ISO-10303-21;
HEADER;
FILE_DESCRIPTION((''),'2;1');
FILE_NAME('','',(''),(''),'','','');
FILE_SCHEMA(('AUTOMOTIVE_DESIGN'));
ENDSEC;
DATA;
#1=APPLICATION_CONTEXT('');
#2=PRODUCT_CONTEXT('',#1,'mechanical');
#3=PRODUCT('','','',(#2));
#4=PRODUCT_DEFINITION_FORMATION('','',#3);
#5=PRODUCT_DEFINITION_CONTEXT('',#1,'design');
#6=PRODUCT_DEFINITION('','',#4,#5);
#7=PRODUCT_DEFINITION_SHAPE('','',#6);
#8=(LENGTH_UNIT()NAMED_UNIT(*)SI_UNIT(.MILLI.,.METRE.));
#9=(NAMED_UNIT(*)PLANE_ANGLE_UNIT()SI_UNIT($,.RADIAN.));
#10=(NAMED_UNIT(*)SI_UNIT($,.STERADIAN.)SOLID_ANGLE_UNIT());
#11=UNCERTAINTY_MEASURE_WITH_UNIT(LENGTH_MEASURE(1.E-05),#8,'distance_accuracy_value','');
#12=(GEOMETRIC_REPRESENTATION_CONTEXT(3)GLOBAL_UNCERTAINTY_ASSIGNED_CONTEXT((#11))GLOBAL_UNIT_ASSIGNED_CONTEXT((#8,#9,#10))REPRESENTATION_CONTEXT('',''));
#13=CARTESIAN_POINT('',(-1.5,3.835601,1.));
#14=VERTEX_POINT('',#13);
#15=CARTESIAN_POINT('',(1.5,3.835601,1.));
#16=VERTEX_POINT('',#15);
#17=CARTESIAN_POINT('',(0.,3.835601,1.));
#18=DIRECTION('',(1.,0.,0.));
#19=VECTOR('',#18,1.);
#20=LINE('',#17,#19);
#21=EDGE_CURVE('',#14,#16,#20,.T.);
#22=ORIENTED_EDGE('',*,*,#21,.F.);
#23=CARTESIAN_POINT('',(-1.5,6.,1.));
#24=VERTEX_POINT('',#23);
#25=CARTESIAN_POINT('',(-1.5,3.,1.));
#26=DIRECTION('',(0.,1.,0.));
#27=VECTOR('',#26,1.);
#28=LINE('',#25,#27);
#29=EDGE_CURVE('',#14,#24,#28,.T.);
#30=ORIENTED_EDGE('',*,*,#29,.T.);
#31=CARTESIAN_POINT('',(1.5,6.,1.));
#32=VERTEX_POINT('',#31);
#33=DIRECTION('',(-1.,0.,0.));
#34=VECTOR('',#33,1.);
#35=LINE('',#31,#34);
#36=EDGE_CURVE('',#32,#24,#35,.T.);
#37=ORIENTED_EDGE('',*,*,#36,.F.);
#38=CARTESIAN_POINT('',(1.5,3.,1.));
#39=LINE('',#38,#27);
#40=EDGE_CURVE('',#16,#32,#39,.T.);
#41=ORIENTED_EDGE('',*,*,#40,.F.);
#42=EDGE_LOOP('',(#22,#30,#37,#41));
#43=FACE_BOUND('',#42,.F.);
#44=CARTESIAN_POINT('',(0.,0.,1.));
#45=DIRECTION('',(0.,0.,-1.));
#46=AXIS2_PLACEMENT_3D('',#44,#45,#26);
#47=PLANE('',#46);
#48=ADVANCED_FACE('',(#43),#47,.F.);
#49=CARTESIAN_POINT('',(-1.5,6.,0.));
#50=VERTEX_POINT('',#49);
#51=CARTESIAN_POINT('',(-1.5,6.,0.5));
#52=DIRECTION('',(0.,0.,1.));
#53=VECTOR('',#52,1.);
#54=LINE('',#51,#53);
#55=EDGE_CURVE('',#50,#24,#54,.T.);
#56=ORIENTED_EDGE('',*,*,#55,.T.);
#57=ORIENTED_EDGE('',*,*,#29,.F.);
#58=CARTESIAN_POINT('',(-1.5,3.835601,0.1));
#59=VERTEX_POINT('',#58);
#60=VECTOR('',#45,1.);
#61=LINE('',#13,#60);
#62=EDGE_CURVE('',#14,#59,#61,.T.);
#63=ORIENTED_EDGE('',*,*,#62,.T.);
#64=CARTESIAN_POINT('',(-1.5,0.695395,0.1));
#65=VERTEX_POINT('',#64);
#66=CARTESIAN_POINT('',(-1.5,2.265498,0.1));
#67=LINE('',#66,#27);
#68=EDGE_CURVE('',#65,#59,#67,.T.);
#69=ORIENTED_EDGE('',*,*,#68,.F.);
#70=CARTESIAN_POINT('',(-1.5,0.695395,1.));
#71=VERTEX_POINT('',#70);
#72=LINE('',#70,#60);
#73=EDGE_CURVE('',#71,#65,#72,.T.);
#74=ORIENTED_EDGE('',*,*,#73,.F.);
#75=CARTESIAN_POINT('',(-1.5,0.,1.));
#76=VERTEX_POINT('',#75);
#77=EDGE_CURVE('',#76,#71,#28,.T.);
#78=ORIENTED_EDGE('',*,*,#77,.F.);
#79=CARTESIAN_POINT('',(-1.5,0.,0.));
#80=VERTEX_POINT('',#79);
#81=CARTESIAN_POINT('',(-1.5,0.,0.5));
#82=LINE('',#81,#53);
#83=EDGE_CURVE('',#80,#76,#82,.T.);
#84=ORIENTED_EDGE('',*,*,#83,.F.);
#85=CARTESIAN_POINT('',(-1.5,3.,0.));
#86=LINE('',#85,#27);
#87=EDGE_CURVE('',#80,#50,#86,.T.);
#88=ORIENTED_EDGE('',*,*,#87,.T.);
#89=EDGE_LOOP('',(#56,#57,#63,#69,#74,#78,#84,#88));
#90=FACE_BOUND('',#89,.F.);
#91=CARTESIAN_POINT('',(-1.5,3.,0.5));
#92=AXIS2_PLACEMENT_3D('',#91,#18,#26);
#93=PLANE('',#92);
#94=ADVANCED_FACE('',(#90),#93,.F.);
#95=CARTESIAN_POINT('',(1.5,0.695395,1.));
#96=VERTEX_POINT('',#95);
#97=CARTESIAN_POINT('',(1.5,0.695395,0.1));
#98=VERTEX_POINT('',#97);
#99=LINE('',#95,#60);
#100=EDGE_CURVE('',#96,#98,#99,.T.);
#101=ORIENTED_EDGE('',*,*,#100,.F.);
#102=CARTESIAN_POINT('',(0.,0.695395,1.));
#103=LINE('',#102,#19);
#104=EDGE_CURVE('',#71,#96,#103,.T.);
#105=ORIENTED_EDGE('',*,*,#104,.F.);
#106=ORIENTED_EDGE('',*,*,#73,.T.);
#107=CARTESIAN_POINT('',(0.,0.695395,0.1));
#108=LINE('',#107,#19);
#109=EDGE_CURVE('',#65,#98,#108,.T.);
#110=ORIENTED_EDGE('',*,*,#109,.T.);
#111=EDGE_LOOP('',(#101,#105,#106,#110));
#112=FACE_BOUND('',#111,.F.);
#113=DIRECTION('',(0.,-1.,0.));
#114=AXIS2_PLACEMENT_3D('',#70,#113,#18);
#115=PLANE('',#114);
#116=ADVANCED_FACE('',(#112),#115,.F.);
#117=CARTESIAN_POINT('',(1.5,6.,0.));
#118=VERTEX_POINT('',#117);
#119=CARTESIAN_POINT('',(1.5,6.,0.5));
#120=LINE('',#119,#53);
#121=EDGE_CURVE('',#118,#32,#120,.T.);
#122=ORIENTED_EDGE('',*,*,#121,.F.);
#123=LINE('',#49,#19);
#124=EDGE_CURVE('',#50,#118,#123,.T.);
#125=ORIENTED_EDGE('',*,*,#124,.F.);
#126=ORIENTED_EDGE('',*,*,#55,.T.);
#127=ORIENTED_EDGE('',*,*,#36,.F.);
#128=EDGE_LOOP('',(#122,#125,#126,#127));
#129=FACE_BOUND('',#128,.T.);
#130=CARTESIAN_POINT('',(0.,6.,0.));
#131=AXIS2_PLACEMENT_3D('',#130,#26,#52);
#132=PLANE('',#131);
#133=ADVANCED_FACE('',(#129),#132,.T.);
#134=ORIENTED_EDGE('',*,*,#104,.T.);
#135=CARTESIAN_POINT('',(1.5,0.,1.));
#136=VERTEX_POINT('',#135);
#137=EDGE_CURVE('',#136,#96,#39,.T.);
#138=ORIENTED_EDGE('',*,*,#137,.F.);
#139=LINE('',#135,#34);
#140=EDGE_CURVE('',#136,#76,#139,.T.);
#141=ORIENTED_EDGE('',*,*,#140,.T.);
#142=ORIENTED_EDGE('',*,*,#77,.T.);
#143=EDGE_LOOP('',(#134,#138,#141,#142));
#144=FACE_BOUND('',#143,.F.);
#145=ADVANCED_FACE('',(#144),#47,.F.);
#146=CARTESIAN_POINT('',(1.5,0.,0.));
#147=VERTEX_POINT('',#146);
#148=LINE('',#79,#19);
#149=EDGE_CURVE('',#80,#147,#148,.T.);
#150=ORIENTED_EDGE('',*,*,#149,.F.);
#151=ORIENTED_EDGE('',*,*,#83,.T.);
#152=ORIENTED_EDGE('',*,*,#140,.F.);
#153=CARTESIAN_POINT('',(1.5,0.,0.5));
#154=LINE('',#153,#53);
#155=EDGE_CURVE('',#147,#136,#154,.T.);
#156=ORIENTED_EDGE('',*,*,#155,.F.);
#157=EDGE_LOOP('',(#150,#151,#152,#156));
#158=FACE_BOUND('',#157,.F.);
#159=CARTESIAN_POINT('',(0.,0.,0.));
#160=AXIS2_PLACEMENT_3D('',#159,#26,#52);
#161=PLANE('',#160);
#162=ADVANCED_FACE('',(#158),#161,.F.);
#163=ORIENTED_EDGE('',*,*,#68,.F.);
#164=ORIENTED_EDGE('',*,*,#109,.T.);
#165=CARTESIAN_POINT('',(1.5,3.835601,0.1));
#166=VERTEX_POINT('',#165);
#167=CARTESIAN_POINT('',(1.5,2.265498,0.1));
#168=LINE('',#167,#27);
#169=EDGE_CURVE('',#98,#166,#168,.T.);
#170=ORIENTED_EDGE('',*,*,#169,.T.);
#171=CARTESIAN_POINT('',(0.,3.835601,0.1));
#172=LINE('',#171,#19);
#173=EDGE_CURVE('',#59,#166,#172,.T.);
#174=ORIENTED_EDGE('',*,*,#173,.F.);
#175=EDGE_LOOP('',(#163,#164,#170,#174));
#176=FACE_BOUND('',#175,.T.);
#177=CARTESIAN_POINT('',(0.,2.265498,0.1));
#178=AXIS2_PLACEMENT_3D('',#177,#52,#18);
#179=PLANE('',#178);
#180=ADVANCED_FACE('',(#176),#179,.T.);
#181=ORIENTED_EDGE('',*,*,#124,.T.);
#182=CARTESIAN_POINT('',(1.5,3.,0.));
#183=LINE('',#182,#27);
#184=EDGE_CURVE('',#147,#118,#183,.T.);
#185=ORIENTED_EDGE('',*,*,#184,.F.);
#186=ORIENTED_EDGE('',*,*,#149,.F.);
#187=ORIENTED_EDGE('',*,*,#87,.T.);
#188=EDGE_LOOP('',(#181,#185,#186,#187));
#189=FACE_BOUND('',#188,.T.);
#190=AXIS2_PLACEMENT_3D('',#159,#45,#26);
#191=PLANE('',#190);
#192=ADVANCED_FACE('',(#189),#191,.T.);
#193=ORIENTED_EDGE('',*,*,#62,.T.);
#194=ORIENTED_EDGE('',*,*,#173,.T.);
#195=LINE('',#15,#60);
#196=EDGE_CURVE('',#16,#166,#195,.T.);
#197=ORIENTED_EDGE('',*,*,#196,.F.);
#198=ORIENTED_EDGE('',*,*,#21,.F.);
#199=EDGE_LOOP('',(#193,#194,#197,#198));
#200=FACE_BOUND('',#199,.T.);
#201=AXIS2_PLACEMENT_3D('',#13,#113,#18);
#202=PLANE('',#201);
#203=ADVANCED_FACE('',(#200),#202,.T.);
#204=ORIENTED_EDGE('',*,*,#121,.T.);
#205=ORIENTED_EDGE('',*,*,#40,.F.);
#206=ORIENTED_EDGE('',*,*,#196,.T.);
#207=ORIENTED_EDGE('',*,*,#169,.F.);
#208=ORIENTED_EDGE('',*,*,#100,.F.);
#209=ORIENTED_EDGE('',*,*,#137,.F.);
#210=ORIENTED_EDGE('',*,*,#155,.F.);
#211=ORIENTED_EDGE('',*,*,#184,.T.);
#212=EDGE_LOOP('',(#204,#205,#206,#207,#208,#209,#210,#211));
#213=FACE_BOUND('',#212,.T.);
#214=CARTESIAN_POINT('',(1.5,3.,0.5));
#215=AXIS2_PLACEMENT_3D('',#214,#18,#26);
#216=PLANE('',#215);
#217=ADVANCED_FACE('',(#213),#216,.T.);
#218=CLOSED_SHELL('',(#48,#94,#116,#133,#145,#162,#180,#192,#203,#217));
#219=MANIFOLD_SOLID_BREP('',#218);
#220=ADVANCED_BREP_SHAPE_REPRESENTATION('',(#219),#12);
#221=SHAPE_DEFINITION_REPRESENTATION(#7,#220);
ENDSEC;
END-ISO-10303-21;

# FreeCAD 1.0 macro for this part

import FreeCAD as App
import Part
import Sketcher

V = App.Vector

doc = App.newDocument("Part")
body = doc.addObject("PartDesign::Body", "Body")

sketch1 = body.newObject("Sketcher::SketchObject", "Sketch")
sketch1.AttachmentSupport = (doc.getObject("YZ_Plane"), [""])
sketch1.MapMode = "FlatFace"
sketch1.addGeometry([
    Part.LineSegment(V(0, 1, 0), V(0, 0, 0)),
    Part.LineSegment(V(0, 0, 0), V(6, 0, 0)),
    Part.LineSegment(V(6, 0, 0), V(6, 1, 0)),
    Part.LineSegment(V(6, 1, 0), V(0, 1, 0)),
], False)
sketch1.addConstraint([
    Sketcher.Constraint("Coincident", 0, 2, 1, 1),
    Sketcher.Constraint("Coincident", 1, 2, 2, 1),
    Sketcher.Constraint("Coincident", 2, 2, 3, 1),
    Sketcher.Constraint("Coincident", 3, 2, 0, 1),
    Sketcher.Constraint("Vertical", 0),
    Sketcher.Constraint("Horizontal", 1),
    Sketcher.Constraint("Vertical", 2),
    Sketcher.Constraint("Horizontal", 3),
    Sketcher.Constraint("Coincident", 0, 2, -1, 1),
    Sketcher.Constraint("DistanceX", 1, 1, 1, 2, 6.0),
    Sketcher.Constraint("DistanceY", 0, 2, 0, 1, 1.0),
])
pad1 = body.newObject("PartDesign::Pad", "Pad")
pad1.Profile = sketch1
pad1.Length = 3
pad1.Midplane = True

sketch2 = body.newObject("Sketcher::SketchObject", "Sketch001")
sketch2.AttachmentSupport = (doc.getObject("XY_Plane"), [""])
sketch2.MapMode = "FlatFace"
sketch2.AttachmentOffset = App.Placement(V(0, 0, 1), App.Rotation())
sketch2.addGeometry([
    Part.LineSegment(V(-1.5, 3.8, 0), V(-1.5, 0.7, 0)),
    Part.LineSegment(V(-1.5, 0.7, 0), V(1.5, 0.7, 0)),
    Part.LineSegment(V(1.5, 0.7, 0), V(1.5, 3.8, 0)),
    Part.LineSegment(V(1.5, 3.8, 0), V(-1.5, 3.8, 0)),
], False)
sketch2.addConstraint([
    Sketcher.Constraint("Coincident", 0, 2, 1, 1),
    Sketcher.Constraint("Coincident", 1, 2, 2, 1),
    Sketcher.Constraint("Coincident", 2, 2, 3, 1),
    Sketcher.Constraint("Coincident", 3, 2, 0, 1),
    Sketcher.Constraint("Vertical", 0),
    Sketcher.Constraint("Horizontal", 1),
    Sketcher.Constraint("Vertical", 2),
    Sketcher.Constraint("Horizontal", 3),
    Sketcher.Constraint("DistanceX", 1, 1, 1, 2, 3.0),
    Sketcher.Constraint("DistanceX", 0, 2, -1, 1, 1.5),
    Sketcher.Constraint("DistanceY", -1, 1, 2, 2, 3.835601),
    Sketcher.Constraint("DistanceY", 0, 2, 0, 1, 3.140206),
])
pocket1 = body.newObject("PartDesign::Pocket", "Pocket")
pocket1.Profile = sketch2
pocket1.Length = 0.9

doc.recompute()
